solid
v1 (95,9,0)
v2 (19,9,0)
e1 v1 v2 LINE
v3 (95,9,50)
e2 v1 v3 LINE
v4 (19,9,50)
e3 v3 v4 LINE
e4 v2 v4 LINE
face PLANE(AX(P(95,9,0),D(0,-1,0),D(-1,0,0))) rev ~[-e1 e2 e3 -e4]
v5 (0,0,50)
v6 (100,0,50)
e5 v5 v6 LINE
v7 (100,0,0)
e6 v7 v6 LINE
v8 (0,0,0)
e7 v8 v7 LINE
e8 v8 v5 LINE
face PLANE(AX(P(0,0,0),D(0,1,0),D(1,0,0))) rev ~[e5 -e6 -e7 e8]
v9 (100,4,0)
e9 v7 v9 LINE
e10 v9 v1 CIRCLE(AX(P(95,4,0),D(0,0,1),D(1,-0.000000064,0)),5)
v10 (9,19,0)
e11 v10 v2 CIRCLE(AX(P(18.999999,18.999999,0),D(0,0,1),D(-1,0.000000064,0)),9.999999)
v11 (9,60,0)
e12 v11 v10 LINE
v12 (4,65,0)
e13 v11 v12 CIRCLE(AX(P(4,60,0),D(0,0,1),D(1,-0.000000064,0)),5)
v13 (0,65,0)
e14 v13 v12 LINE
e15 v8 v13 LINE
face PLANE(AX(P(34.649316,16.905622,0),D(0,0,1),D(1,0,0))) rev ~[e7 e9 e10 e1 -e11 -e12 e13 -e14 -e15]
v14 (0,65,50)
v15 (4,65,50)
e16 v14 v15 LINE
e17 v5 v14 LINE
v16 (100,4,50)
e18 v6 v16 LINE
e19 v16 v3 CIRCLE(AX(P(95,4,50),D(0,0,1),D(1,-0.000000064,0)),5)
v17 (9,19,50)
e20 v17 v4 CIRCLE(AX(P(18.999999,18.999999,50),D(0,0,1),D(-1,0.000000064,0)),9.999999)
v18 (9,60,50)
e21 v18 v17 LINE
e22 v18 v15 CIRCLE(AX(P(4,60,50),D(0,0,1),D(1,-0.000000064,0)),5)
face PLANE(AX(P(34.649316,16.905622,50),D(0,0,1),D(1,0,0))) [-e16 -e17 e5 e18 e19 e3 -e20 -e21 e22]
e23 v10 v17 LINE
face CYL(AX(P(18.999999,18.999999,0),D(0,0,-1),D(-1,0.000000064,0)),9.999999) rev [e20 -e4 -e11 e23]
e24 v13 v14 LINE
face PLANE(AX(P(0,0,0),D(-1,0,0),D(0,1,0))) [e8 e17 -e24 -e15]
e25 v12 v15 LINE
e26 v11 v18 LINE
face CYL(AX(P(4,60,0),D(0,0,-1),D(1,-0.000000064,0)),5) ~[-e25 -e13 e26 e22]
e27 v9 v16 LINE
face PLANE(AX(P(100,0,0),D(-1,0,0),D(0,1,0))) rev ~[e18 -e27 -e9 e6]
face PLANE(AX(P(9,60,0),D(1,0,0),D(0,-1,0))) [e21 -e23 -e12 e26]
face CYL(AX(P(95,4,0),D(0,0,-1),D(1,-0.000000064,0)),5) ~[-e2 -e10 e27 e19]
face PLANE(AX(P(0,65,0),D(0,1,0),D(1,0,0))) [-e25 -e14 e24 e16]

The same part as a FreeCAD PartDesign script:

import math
import FreeCAD as App
import Part
import Sketcher

V = App.Vector

doc = App.newDocument("Part")
body = doc.addObject("PartDesign::Body", "Body")

sketch1 = body.newObject("Sketcher::SketchObject", "Sketch")
sketch1.AttachmentSupport = (doc.getObject("XY_Plane"), [""])
sketch1.MapMode = "FlatFace"
sketch1.addGeometry(Part.LineSegment(V(0, 0, 0), V(100, 0, 0)), False)
sketch1.addGeometry(Part.LineSegment(V(100, 0, 0), V(100, 4, 0)), False)
sketch1.addGeometry(Part.ArcOfCircle(Part.Circle(V(95, 4, 0), V(0, 0, 1), 5), math.radians(0), math.radians(90)), False)
sketch1.addGeometry(Part.LineSegment(V(95, 9, 0), V(19, 9, 0)), False)
sketch1.addGeometry(Part.ArcOfCircle(Part.Circle(V(19, 19, 0), V(0, 0, 1), 10), math.radians(180), math.radians(270)), False)
sketch1.addGeometry(Part.LineSegment(V(9, 19, 0), V(9, 60, 0)), False)
sketch1.addGeometry(Part.ArcOfCircle(Part.Circle(V(4, 60, 0), V(0, 0, 1), 5), math.radians(0), math.radians(90)), False)
sketch1.addGeometry(Part.LineSegment(V(4, 65, 0), V(0, 65, 0)), False)
sketch1.addGeometry(Part.LineSegment(V(0, 65, 0), V(0, 0, 0)), False)
sketch1.addConstraint(Sketcher.Constraint("Coincident", 0, 2, 1, 1))
sketch1.addConstraint(Sketcher.Constraint("Tangent", 1, 2, 2, 1))
sketch1.addConstraint(Sketcher.Constraint("Tangent", 2, 2, 3, 1))
sketch1.addConstraint(Sketcher.Constraint("Tangent", 3, 2, 4, 2))
sketch1.addConstraint(Sketcher.Constraint("Tangent", 4, 1, 5, 1))
sketch1.addConstraint(Sketcher.Constraint("Tangent", 5, 2, 6, 1))
sketch1.addConstraint(Sketcher.Constraint("Tangent", 6, 2, 7, 1))
sketch1.addConstraint(Sketcher.Constraint("Coincident", 7, 2, 8, 1))
sketch1.addConstraint(Sketcher.Constraint("Coincident", 8, 2, 0, 1))
sketch1.addConstraint(Sketcher.Constraint("Horizontal", 0))
sketch1.addConstraint(Sketcher.Constraint("Vertical", 1))
sketch1.addConstraint(Sketcher.Constraint("Horizontal", 3))
sketch1.addConstraint(Sketcher.Constraint("Vertical", 5))
sketch1.addConstraint(Sketcher.Constraint("Horizontal", 7))
sketch1.addConstraint(Sketcher.Constraint("Vertical", 8))
sketch1.addConstraint(Sketcher.Constraint("Coincident", 8, 2, -1, 1))
sketch1.addConstraint(Sketcher.Constraint("Equal", 2, 6))
sketch1.addConstraint(Sketcher.Constraint("Equal", 7, 1))
sketch1.addConstraint(Sketcher.Constraint("Radius", 2, 5.0))
sketch1.addConstraint(Sketcher.Constraint("Radius", 4, 9.999999))
sketch1.addConstraint(Sketcher.Constraint("DistanceX", 0, 1, 0, 2, 100.0))
sketch1.addConstraint(Sketcher.Constraint("DistanceX", 3, 2, 3, 1, 76.0))
sketch1.addConstraint(Sketcher.Constraint("DistanceY", 5, 1, 5, 2, 41.0))
pad1 = body.newObject("PartDesign::Pad", "Pad")
pad1.Profile = sketch1
pad1.Length = 50

doc.recompute()
